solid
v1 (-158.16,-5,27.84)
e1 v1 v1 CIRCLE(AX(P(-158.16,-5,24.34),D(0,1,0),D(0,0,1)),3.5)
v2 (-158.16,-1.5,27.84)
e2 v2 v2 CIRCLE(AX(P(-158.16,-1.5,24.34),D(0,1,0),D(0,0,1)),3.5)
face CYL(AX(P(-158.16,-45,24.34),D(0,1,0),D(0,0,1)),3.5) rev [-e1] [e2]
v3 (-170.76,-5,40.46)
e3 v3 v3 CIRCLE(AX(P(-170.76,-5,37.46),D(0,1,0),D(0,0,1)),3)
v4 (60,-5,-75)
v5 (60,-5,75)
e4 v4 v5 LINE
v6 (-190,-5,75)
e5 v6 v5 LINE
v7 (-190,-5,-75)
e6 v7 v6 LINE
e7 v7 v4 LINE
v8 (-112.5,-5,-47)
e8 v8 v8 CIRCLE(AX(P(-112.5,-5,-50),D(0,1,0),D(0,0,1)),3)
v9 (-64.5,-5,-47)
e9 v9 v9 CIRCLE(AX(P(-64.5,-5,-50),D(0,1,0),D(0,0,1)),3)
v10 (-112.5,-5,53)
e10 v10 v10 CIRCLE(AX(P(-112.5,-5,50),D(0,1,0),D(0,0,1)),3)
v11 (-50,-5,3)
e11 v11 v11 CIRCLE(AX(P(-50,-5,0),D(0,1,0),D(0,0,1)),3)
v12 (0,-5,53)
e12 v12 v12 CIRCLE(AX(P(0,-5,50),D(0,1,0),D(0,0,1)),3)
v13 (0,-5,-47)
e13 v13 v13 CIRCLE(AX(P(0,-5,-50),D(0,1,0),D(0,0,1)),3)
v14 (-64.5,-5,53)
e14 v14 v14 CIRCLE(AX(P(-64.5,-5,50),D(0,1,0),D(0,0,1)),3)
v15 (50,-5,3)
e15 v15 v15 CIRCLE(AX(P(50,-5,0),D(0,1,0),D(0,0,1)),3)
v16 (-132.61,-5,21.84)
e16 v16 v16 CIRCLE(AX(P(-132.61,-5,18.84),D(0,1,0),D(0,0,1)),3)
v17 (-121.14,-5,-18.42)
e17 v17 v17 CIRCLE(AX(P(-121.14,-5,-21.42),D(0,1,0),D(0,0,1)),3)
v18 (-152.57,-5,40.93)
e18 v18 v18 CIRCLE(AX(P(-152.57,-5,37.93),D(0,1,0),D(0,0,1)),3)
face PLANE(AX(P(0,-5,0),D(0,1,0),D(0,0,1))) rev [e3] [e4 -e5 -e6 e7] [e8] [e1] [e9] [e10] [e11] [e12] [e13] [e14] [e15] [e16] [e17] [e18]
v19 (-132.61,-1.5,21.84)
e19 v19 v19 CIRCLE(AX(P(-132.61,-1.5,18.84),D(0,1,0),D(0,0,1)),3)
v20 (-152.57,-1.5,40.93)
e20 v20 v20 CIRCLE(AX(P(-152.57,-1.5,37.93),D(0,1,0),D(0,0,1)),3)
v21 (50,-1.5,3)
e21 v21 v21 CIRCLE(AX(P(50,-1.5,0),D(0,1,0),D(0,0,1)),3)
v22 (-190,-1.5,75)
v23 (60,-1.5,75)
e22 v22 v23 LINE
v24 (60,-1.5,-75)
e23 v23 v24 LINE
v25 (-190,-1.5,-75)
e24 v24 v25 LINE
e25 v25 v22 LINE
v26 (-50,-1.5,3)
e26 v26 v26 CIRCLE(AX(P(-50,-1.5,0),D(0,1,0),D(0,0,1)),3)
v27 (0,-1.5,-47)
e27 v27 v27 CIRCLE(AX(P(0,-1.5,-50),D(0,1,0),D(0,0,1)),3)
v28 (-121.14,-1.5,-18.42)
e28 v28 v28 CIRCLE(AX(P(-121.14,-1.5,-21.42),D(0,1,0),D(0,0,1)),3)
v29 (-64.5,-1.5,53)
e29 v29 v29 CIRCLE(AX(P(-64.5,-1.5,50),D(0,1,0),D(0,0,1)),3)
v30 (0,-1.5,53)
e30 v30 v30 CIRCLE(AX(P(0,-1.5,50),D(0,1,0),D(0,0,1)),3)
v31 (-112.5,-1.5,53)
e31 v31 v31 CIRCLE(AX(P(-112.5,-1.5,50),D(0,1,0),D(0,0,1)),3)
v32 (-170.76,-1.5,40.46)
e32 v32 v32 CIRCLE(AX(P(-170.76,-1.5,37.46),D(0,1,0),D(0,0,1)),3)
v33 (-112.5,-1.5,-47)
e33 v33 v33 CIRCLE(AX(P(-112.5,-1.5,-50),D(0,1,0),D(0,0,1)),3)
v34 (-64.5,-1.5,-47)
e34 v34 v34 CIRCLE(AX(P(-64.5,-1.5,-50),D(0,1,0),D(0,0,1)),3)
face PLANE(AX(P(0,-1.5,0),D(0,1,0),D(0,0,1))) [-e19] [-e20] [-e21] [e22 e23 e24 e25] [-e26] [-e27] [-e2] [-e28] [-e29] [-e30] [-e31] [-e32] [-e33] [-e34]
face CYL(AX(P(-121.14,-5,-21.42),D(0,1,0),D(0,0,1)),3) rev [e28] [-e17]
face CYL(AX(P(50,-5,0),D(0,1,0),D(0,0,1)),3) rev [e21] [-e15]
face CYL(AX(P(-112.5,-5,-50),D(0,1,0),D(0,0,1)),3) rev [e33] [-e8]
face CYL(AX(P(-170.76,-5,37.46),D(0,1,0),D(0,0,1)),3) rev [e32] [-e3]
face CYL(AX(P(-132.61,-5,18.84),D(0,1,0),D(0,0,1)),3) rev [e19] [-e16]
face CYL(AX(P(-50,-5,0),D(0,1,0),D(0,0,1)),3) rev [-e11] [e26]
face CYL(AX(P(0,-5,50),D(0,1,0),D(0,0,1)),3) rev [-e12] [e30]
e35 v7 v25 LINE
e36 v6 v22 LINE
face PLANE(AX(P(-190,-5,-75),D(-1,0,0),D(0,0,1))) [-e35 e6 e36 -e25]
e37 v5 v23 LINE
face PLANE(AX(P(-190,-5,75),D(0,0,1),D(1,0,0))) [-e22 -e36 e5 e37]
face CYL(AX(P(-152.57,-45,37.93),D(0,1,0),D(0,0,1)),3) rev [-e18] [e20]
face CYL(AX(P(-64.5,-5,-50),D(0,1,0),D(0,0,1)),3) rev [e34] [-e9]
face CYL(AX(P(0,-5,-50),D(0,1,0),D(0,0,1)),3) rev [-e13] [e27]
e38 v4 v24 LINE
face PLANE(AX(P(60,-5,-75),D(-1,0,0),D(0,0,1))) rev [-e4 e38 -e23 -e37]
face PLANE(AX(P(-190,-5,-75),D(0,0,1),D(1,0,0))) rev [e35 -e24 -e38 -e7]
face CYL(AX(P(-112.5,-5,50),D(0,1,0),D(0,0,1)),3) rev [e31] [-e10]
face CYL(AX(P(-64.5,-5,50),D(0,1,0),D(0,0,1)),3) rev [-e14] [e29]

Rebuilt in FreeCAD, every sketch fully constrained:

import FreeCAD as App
import Part
import Sketcher
Q = App.Units.Quantity

doc = App.newDocument("Part")
body = doc.addObject("PartDesign::Body", "Body")

# Sketch on XZ plane
sketch1 = body.newObject("Sketcher::SketchObject", "Sketch")
sketch1.AttachmentSupport = (doc.getObject("XZ_Plane"), [""])
sketch1.MapMode = "FlatFace"
sketch1.addGeometry([
    Part.LineSegment(App.Vector(-190, -75, 0), App.Vector(-190, 75, 0)),
    Part.LineSegment(App.Vector(-190, 75, 0), App.Vector(60, 75, 0)),
    Part.LineSegment(App.Vector(60, 75, 0), App.Vector(60, -75, 0)),
    Part.LineSegment(App.Vector(60, -75, 0), App.Vector(-190, -75, 0)),
], False)
sketch1.addConstraint([
    Sketcher.Constraint("Coincident", 0, 2, 1, 1),
    Sketcher.Constraint("Coincident", 1, 2, 2, 1),
    Sketcher.Constraint("Coincident", 2, 2, 3, 1),
    Sketcher.Constraint("Coincident", 3, 2, 0, 1),
    Sketcher.Constraint("Vertical", 0),
    Sketcher.Constraint("Horizontal", 1),
    Sketcher.Constraint("Vertical", 2),
    Sketcher.Constraint("Horizontal", 3),
    Sketcher.Constraint("DistanceX", 1, 1, 1, 2, Q("250 mm")),
    Sketcher.Constraint("DistanceY", 0, 1, 0, 2, Q("150 mm")),
    Sketcher.Constraint("DistanceX", 0, 2, -1, 1, Q("190 mm")),
    Sketcher.Constraint("DistanceY", -1, 1, 0, 2, Q("75 mm")),
])
pad1 = body.newObject("PartDesign::Pad", "Pad")
pad1.Profile = sketch1
pad1.Length = 5

# Sketch on XZ plane
sketch2 = body.newObject("Sketcher::SketchObject", "Sketch001")
sketch2.AttachmentSupport = (doc.getObject("XZ_Plane"), [""])
sketch2.MapMode = "FlatFace"
sketch2.addGeometry(Part.Circle(App.Vector(0, -50, 0), App.Vector(0, 0, 1), 3), False)
sketch2.addConstraint([
    Sketcher.Constraint("PointOnObject", 0, 3, -2),
    Sketcher.Constraint("Diameter", 0, Q("6 mm")),
    Sketcher.Constraint("DistanceY", 0, 3, -1, 1, Q("50 mm")),
])
pocket1 = body.newObject("PartDesign::Pocket", "Pocket")
pocket1.Profile = sketch2
pocket1.Length = 5
pocket1.Reversed = True

# Sketch on XZ plane
sketch3 = body.newObject("Sketcher::SketchObject", "Sketch002")
sketch3.AttachmentSupport = (doc.getObject("XZ_Plane"), [""])
sketch3.MapMode = "FlatFace"
sketch3.addGeometry(Part.Circle(App.Vector(-50, 0, 0), App.Vector(0, 0, 1), 3), False)
sketch3.addConstraint([
    Sketcher.Constraint("PointOnObject", 0, 3, -1),
    Sketcher.Constraint("Diameter", 0, Q("6 mm")),
    Sketcher.Constraint("DistanceX", 0, 3, -1, 1, Q("50 mm")),
])
pocket2 = body.newObject("PartDesign::Pocket", "Pocket001")
pocket2.Profile = sketch3
pocket2.Length = 5
pocket2.Reversed = True

# Sketch on XZ plane
sketch4 = body.newObject("Sketcher::SketchObject", "Sketch003")
sketch4.AttachmentSupport = (doc.getObject("XZ_Plane"), [""])
sketch4.MapMode = "FlatFace"
sketch4.addGeometry(Part.Circle(App.Vector(0, 50, 0), App.Vector(0, 0, 1), 3), False)
sketch4.addConstraint([
    Sketcher.Constraint("PointOnObject", 0, 3, -2),
    Sketcher.Constraint("Diameter", 0, Q("6 mm")),
    Sketcher.Constraint("DistanceY", -1, 1, 0, 3, Q("50 mm")),
])
pocket3 = body.newObject("PartDesign::Pocket", "Pocket002")
pocket3.Profile = sketch4
pocket3.Length = 5
pocket3.Reversed = True

# Sketch on XZ plane
sketch5 = body.newObject("Sketcher::SketchObject", "Sketch004")
sketch5.AttachmentSupport = (doc.getObject("XZ_Plane"), [""])
sketch5.MapMode = "FlatFace"
sketch5.addGeometry(Part.Circle(App.Vector(50, 0, 0), App.Vector(0, 0, 1), 3), False)
sketch5.addConstraint([
    Sketcher.Constraint("PointOnObject", 0, 3, -1),
    Sketcher.Constraint("Diameter", 0, Q("6 mm")),
    Sketcher.Constraint("DistanceX", -1, 1, 0, 3, Q("50 mm")),
])
pocket4 = body.newObject("PartDesign::Pocket", "Pocket003")
pocket4.Profile = sketch5
pocket4.Length = 5
pocket4.Reversed = True

# Sketch on XZ plane
sketch6 = body.newObject("Sketcher::SketchObject", "Sketch005")
sketch6.AttachmentSupport = (doc.getObject("XZ_Plane"), [""])
sketch6.MapMode = "FlatFace"
sketch6.addGeometry(Part.Circle(App.Vector(-170.8, 37.5, 0), App.Vector(0, 0, 1), 3), False)
sketch6.addConstraint([
    Sketcher.Constraint("Diameter", 0, Q("6 mm")),
    Sketcher.Constraint("DistanceX", 0, 3, -1, 1, Q("170.76 mm")),
    Sketcher.Constraint("DistanceY", -1, 1, 0, 3, Q("37.46 mm")),
])
pocket5 = body.newObject("PartDesign::Pocket", "Pocket004")
pocket5.Profile = sketch6
pocket5.Length = 5
pocket5.Reversed = True

# Sketch on XZ plane
sketch7 = body.newObject("Sketcher::SketchObject", "Sketch006")
sketch7.AttachmentSupport = (doc.getObject("XZ_Plane"), [""])
sketch7.MapMode = "FlatFace"
sketch7.addGeometry(Part.Circle(App.Vector(-152.6, 37.9, 0), App.Vector(0, 0, 1), 3), False)
sketch7.addConstraint([
    Sketcher.Constraint("Diameter", 0, Q("6 mm")),
    Sketcher.Constraint("DistanceX", 0, 3, -1, 1, Q("152.57 mm")),
    Sketcher.Constraint("DistanceY", -1, 1, 0, 3, Q("37.93 mm")),
])
pocket6 = body.newObject("PartDesign::Pocket", "Pocket005")
pocket6.Profile = sketch7
pocket6.Length = 45
pocket6.Reversed = True

# Sketch on XZ plane
sketch8 = body.newObject("Sketcher::SketchObject", "Sketch007")
sketch8.AttachmentSupport = (doc.getObject("XZ_Plane"), [""])
sketch8.MapMode = "FlatFace"
sketch8.addGeometry(Part.Circle(App.Vector(-158.2, 24.3, 0), App.Vector(0, 0, 1), 3.5), False)
sketch8.addConstraint([
    Sketcher.Constraint("Diameter", 0, Q("7 mm")),
    Sketcher.Constraint("DistanceX", 0, 3, -1, 1, Q("158.16 mm")),
    Sketcher.Constraint("DistanceY", -1, 1, 0, 3, Q("24.34 mm")),
])
pocket7 = body.newObject("PartDesign::Pocket", "Pocket006")
pocket7.Profile = sketch8
pocket7.Length = 45
pocket7.Reversed = True

# Sketch on XZ plane
sketch9 = body.newObject("Sketcher::SketchObject", "Sketch008")
sketch9.AttachmentSupport = (doc.getObject("XZ_Plane"), [""])
sketch9.MapMode = "FlatFace"
sketch9.addGeometry(Part.Circle(App.Vector(-112.5, 50, 0), App.Vector(0, 0, 1), 3), False)
sketch9.addConstraint([
    Sketcher.Constraint("Diameter", 0, Q("6 mm")),
    Sketcher.Constraint("DistanceY", -1, 1, 0, 3, Q("50 mm")),
    Sketcher.Constraint("DistanceX", 0, 3, -1, 1, Q("112.5 mm")),
])
pocket8 = body.newObject("PartDesign::Pocket", "Pocket007")
pocket8.Profile = sketch9
pocket8.Length = 5
pocket8.Reversed = True

# Sketch on XZ plane
sketch10 = body.newObject("Sketcher::SketchObject", "Sketch009")
sketch10.AttachmentSupport = (doc.getObject("XZ_Plane"), [""])
sketch10.MapMode = "FlatFace"
sketch10.addGeometry(Part.Circle(App.Vector(-64.5, 50, 0), App.Vector(0, 0, 1), 3), False)
sketch10.addConstraint([
    Sketcher.Constraint("Diameter", 0, Q("6 mm")),
    Sketcher.Constraint("DistanceY", -1, 1, 0, 3, Q("50 mm")),
    Sketcher.Constraint("DistanceX", 0, 3, -1, 1, Q("64.5 mm")),
])
pocket9 = body.newObject("PartDesign::Pocket", "Pocket008")
pocket9.Profile = sketch10
pocket9.Length = 5
pocket9.Reversed = True

# Sketch on XZ plane
sketch11 = body.newObject("Sketcher::SketchObject", "Sketch010")
sketch11.AttachmentSupport = (doc.getObject("XZ_Plane"), [""])
sketch11.MapMode = "FlatFace"
sketch11.addGeometry([
    Part.Circle(App.Vector(-132.6, 18.8, 0), App.Vector(0, 0, 1), 3),
    Part.Circle(App.Vector(-121.1, -21.4, 0), App.Vector(0, 0, 1), 3),
], False)
sketch11.addConstraint([
    Sketcher.Constraint("Equal", 0, 1),
    Sketcher.Constraint("Diameter", 0, Q("6 mm")),
    Sketcher.Constraint("DistanceX", 0, 3, -1, 1, Q("132.61 mm")),
    Sketcher.Constraint("DistanceY", -1, 1, 0, 3, Q("18.84 mm")),
    Sketcher.Constraint("DistanceX", 1, 3, -1, 1, Q("121.14 mm")),
    Sketcher.Constraint("DistanceY", 1, 3, -1, 1, Q("21.42 mm")),
])
pocket10 = body.newObject("PartDesign::Pocket", "Pocket009")
pocket10.Profile = sketch11
pocket10.Length = 5
pocket10.Reversed = True

# Sketch on XZ plane
sketch12 = body.newObject("Sketcher::SketchObject", "Sketch011")
sketch12.AttachmentSupport = (doc.getObject("XZ_Plane"), [""])
sketch12.MapMode = "FlatFace"
sketch12.addGeometry([
    Part.LineSegment(App.Vector(-190, -75, 0), App.Vector(-190, 75, 0)),  # 0
    Part.LineSegment(App.Vector(-190, 75, 0), App.Vector(60, 75, 0)),  # 1
    Part.LineSegment(App.Vector(60, 75, 0), App.Vector(60, -75, 0)),  # 2
    Part.LineSegment(App.Vector(60, -75, 0), App.Vector(-190, -75, 0)),  # 3
    Part.Circle(App.Vector(-170.8, 37.5, 0), App.Vector(0, 0, 1), 3),  # 4
    Part.Circle(App.Vector(-152.6, 37.9, 0), App.Vector(0, 0, 1), 3),  # 5
    Part.Circle(App.Vector(-112.5, 50, 0), App.Vector(0, 0, 1), 3),  # 6
    Part.Circle(App.Vector(-64.5, 50, 0), App.Vector(0, 0, 1), 3),  # 7
    Part.Circle(App.Vector(-158.2, 24.3, 0), App.Vector(0, 0, 1), 3.5),  # 8
    Part.Circle(App.Vector(-132.6, 18.8, 0), App.Vector(0, 0, 1), 3),  # 9
    Part.Circle(App.Vector(0, 50, 0), App.Vector(0, 0, 1), 3),  # 10
    Part.Circle(App.Vector(-121.1, -21.4, 0), App.Vector(0, 0, 1), 3),  # 11
    Part.Circle(App.Vector(-50, 0, 0), App.Vector(0, 0, 1), 3),  # 12
    Part.Circle(App.Vector(50, 0, 0), App.Vector(0, 0, 1), 3),  # 13
    Part.Circle(App.Vector(0, -50, 0), App.Vector(0, 0, 1), 3),  # 14
], False)
sketch12.addConstraint([
    Sketcher.Constraint("Coincident", 0, 2, 1, 1),
    Sketcher.Constraint("Coincident", 1, 2, 2, 1),
    Sketcher.Constraint("Coincident", 2, 2, 3, 1),
    Sketcher.Constraint("Coincident", 3, 2, 0, 1),
    Sketcher.Constraint("Vertical", 0),
    Sketcher.Constraint("Horizontal", 1),
    Sketcher.Constraint("Vertical", 2),
    Sketcher.Constraint("Horizontal", 3),
    Sketcher.Constraint("Equal", 4, 5),
    Sketcher.Constraint("Equal", 5, 6),
    Sketcher.Constraint("Equal", 6, 7),
    Sketcher.Constraint("Equal", 7, 9),
    Sketcher.Constraint("Equal", 9, 10),
    Sketcher.Constraint("Equal", 10, 11),
    Sketcher.Constraint("Equal", 11, 12),
    Sketcher.Constraint("Equal", 12, 13),
    Sketcher.Constraint("Equal", 13, 14),
    Sketcher.Constraint("Symmetric", 12, 3, 13, 3, -1, 1),
    Sketcher.Constraint("Symmetric", 10, 3, 14, 3, -1, 1),
    Sketcher.Constraint("PointOnObject", 10, 3, -2),
    Sketcher.Constraint("PointOnObject", 12, 3, -1),
    Sketcher.Constraint("Horizontal", 6, 3, 7, 3),
    Sketcher.Constraint("Horizontal", 7, 3, 10, 3),
    Sketcher.Constraint("Diameter", 4, Q("6 mm")),
    Sketcher.Constraint("Diameter", 8, Q("7 mm")),
    Sketcher.Constraint("DistanceX", 1, 1, 1, 2, Q("250 mm")),
    Sketcher.Constraint("DistanceY", 0, 1, 0, 2, Q("150 mm")),
    Sketcher.Constraint("DistanceY", -1, 1, 6, 3, Q("50 mm")),
    Sketcher.Constraint("DistanceX", 12, 3, -1, 1, Q("50 mm")),
    Sketcher.Constraint("DistanceX", 0, 2, -1, 1, Q("190 mm")),
    Sketcher.Constraint("DistanceY", -1, 1, 0, 2, Q("75 mm")),
    Sketcher.Constraint("DistanceX", 6, 3, 7, 3, Q("48 mm")),
    Sketcher.Constraint("DistanceX", 6, 3, -1, 1, Q("112.5 mm")),
    Sketcher.Constraint("DistanceX", 4, 3, 8, 3, Q("12.6 mm")),
    Sketcher.Constraint("DistanceY", 9, 3, 8, 3, Q("5.5 mm")),
    Sketcher.Constraint("DistanceX", 4, 3, -1, 1, Q("170.76 mm")),
    Sketcher.Constraint("DistanceY", -1, 1, 4, 3, Q("37.46 mm")),
    Sketcher.Constraint("DistanceX", 5, 3, -1, 1, Q("152.57 mm")),
    Sketcher.Constraint("DistanceY", -1, 1, 5, 3, Q("37.93 mm")),
    Sketcher.Constraint("DistanceY", -1, 1, 8, 3, Q("24.34 mm")),
    Sketcher.Constraint("DistanceX", 9, 3, -1, 1, Q("132.61 mm")),
    Sketcher.Constraint("DistanceX", 11, 3, -1, 1, Q("121.14 mm")),
    Sketcher.Constraint("DistanceY", 11, 3, -1, 1, Q("21.42 mm")),
])
pocket11 = body.newObject("PartDesign::Pocket", "Pocket010")
pocket11.Profile = sketch12
pocket11.Length = 1.5
pocket11.Reversed = True

# Sketch on XZ plane
sketch13 = body.newObject("Sketcher::SketchObject", "Sketch012")
sketch13.AttachmentSupport = (doc.getObject("XZ_Plane"), [""])
sketch13.MapMode = "FlatFace"
sketch13.AttachmentOffset = App.Placement(App.Vector(0, 0, 1.5), App.Rotation())
sketch13.addGeometry([
    Part.Circle(App.Vector(-64.5, -50, 0), App.Vector(0, 0, 1), 3),
    Part.Circle(App.Vector(-112.5, -50, 0), App.Vector(0, 0, 1), 3),
    Part.Circle(App.Vector(-64.5, 50, 0), App.Vector(0, 0, 1), 3),
    Part.Circle(App.Vector(-112.5, 50, 0), App.Vector(0, 0, 1), 3),
], False)
sketch13.addConstraint([
    Sketcher.Constraint("Equal", 0, 1),
    Sketcher.Constraint("Equal", 1, 2),
    Sketcher.Constraint("Equal", 2, 3),
    Sketcher.Constraint("Symmetric", 0, 3, 2, 3, -1),
    Sketcher.Constraint("Symmetric", 1, 3, 3, 3, -1),
    Sketcher.Constraint("Horizontal", 0, 3, 1, 3),
    Sketcher.Constraint("Diameter", 0, Q("6 mm")),
    Sketcher.Constraint("DistanceY", 0, 3, -1, 1, Q("50 mm")),
    Sketcher.Constraint("DistanceX", 1, 3, 0, 3, Q("48 mm")),
    Sketcher.Constraint("DistanceX", 0, 3, -1, 1, Q("64.5 mm")),
])
pocket12 = body.newObject("PartDesign::Pocket", "Pocket011")
pocket12.Profile = sketch13
pocket12.Type = "ThroughAll"
pocket12.Reversed = True

doc.recompute()
